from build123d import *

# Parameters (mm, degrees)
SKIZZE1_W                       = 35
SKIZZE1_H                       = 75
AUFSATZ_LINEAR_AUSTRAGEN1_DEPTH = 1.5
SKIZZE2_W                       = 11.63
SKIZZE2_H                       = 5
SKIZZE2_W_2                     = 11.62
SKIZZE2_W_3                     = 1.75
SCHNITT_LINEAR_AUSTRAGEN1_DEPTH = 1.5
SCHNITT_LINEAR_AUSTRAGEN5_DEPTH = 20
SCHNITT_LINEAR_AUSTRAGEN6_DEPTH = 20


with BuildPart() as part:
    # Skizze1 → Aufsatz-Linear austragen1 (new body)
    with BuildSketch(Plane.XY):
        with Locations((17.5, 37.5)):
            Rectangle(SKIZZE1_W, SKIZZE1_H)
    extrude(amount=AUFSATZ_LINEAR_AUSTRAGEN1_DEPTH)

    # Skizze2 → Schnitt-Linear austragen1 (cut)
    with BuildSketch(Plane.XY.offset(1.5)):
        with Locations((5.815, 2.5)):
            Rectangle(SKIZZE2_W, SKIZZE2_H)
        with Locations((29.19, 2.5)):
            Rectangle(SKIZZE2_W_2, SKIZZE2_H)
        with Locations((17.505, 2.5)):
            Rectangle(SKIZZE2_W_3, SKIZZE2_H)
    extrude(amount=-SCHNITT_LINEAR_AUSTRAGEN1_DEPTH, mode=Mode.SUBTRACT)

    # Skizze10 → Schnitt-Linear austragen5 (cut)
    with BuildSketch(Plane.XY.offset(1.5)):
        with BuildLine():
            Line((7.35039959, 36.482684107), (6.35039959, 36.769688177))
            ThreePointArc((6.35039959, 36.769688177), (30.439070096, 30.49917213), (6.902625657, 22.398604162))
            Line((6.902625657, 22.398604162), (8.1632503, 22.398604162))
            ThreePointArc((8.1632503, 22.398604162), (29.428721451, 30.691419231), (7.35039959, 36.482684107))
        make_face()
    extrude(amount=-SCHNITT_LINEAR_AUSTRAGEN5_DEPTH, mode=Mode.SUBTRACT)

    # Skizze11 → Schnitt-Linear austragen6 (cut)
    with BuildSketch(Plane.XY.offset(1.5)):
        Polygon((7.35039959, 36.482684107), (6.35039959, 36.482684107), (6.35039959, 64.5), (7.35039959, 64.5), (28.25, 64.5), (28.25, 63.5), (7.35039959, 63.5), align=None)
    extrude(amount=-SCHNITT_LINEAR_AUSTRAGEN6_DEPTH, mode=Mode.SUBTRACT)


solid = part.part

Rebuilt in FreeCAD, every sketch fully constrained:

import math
import FreeCAD as App
import Part
import Sketcher

V = App.Vector
Q = App.Units.Quantity

doc = App.newDocument("Part")
body = doc.addObject("PartDesign::Body", "Body")

# Sketch on XY plane
sketch1 = body.newObject("Sketcher::SketchObject", "Sketch")
sketch1.AttachmentSupport = (doc.getObject("XY_Plane"), [""])
sketch1.MapMode = "FlatFace"
sketch1.addGeometry([
    Part.LineSegment(V(0, 75, 0), V(0, 0, 0)),
    Part.LineSegment(V(0, 0, 0), V(35, 0, 0)),
    Part.LineSegment(V(35, 0, 0), V(35, 75, 0)),
    Part.LineSegment(V(35, 75, 0), V(0, 75, 0)),
], False)
sketch1.addConstraint([
    Sketcher.Constraint("Coincident", 0, 2, 1, 1),
    Sketcher.Constraint("Coincident", 1, 2, 2, 1),
    Sketcher.Constraint("Coincident", 2, 2, 3, 1),
    Sketcher.Constraint("Coincident", 3, 2, 0, 1),
    Sketcher.Constraint("Vertical", 0),
    Sketcher.Constraint("Horizontal", 1),
    Sketcher.Constraint("Vertical", 2),
    Sketcher.Constraint("Horizontal", 3),
    Sketcher.Constraint("Coincident", 0, 2, -1, 1),
    Sketcher.Constraint("DistanceX", 1, 1, 1, 2, Q("35 mm")),
    Sketcher.Constraint("DistanceY", 0, 2, 0, 1, Q("75 mm")),
])
pad1 = body.newObject("PartDesign::Pad", "Pad")
pad1.Profile = sketch1
pad1.Length = 1.5

# Sketch on XY plane
sketch2 = body.newObject("Sketcher::SketchObject", "Sketch001")
sketch2.AttachmentSupport = (doc.getObject("XY_Plane"), [""])
sketch2.MapMode = "FlatFace"
sketch2.AttachmentOffset = App.Placement(V(0, 0, 1.5), App.Rotation())
sketch2.addGeometry([
    Part.LineSegment(V(0, 5, 0), V(0, 0, 0)),  # 0
    Part.LineSegment(V(0, 0, 0), V(11.6, 0, 0)),  # 1
    Part.LineSegment(V(11.6, 0, 0), V(11.6, 5, 0)),  # 2
    Part.LineSegment(V(11.6, 5, 0), V(0, 5, 0)),  # 3
    Part.LineSegment(V(23.4, 5, 0), V(23.4, 0, 0)),  # 4
    Part.LineSegment(V(23.4, 0, 0), V(35, 0, 0)),  # 5
    Part.LineSegment(V(35, 0, 0), V(35, 5, 0)),  # 6
    Part.LineSegment(V(35, 5, 0), V(23.4, 5, 0)),  # 7
    Part.LineSegment(V(16.6, 5, 0), V(16.6, 0, 0)),  # 8
    Part.LineSegment(V(16.6, 0, 0), V(18.4, 0, 0)),  # 9
    Part.LineSegment(V(18.4, 0, 0), V(18.4, 5, 0)),  # 10
    Part.LineSegment(V(18.4, 5, 0), V(16.6, 5, 0)),  # 11
], False)
sketch2.addConstraint([
    Sketcher.Constraint("Coincident", 0, 2, 1, 1),
    Sketcher.Constraint("Coincident", 1, 2, 2, 1),
    Sketcher.Constraint("Coincident", 2, 2, 3, 1),
    Sketcher.Constraint("Coincident", 3, 2, 0, 1),
    Sketcher.Constraint("Coincident", 4, 2, 5, 1),
    Sketcher.Constraint("Coincident", 5, 2, 6, 1),
    Sketcher.Constraint("Coincident", 6, 2, 7, 1),
    Sketcher.Constraint("Coincident", 7, 2, 4, 1),
    Sketcher.Constraint("Coincident", 8, 2, 9, 1),
    Sketcher.Constraint("Coincident", 9, 2, 10, 1),
    Sketcher.Constraint("Coincident", 10, 2, 11, 1),
    Sketcher.Constraint("Coincident", 11, 2, 8, 1),
    Sketcher.Constraint("Vertical", 0),
    Sketcher.Constraint("Horizontal", 1),
    Sketcher.Constraint("Vertical", 2),
    Sketcher.Constraint("Horizontal", 3),
    Sketcher.Constraint("Vertical", 4),
    Sketcher.Constraint("Horizontal", 5),
    Sketcher.Constraint("Vertical", 6),
    Sketcher.Constraint("Horizontal", 7),
    Sketcher.Constraint("Vertical", 8),
    Sketcher.Constraint("Horizontal", 9),
    Sketcher.Constraint("Vertical", 10),
    Sketcher.Constraint("Horizontal", 11),
    Sketcher.Constraint("Coincident", 0, 2, -1, 1),
    Sketcher.Constraint("PointOnObject", 4, 2, -1),
    Sketcher.Constraint("PointOnObject", 8, 2, -1),
    Sketcher.Constraint("Horizontal", 3, 2, 6, 2),
    Sketcher.Constraint("Horizontal", 7, 2, 10, 2),
    Sketcher.Constraint("DistanceY", 0, 2, 0, 1, Q("5 mm")),
    Sketcher.Constraint("DistanceX", -1, 1, 5, 2, Q("35 mm")),
    Sketcher.Constraint("DistanceX", 1, 2, 8, 2, Q("5 mm")),
    Sketcher.Constraint("DistanceX", 9, 2, 4, 2, Q("5 mm")),
    Sketcher.Constraint("DistanceX", 1, 1, 1, 2, Q("11.63 mm")),
    Sketcher.Constraint("DistanceX", 5, 1, 5, 2, Q("11.62 mm")),
])
pocket1 = body.newObject("PartDesign::Pocket", "Pocket")
pocket1.Profile = sketch2
pocket1.Length = 1.5

# Sketch on XY plane
sketch3 = body.newObject("Sketcher::SketchObject", "Sketch002")
sketch3.AttachmentSupport = (doc.getObject("XY_Plane"), [""])
sketch3.MapMode = "FlatFace"
sketch3.AttachmentOffset = App.Placement(V(0, 0, 1.5), App.Rotation())
sketch3.addGeometry([
    Part.LineSegment(V(6.4, 36.8, 0), V(7.4, 36.5, 0)),
    Part.ArcOfCircle(Part.Circle(V(17.4, 30, 0), V(0, 0, 1), 12), math.radians(-141), math.radians(147)),
    Part.LineSegment(V(8.2, 22.4, 0), V(6.9, 22.4, 0)),
    Part.ArcOfCircle(Part.Circle(V(17.4, 30, 0), V(0, 0, 1), 13), math.radians(-144), math.radians(149)),
], False)
sketch3.addConstraint([
    Sketcher.Constraint("Coincident", 0, 2, 1, 2),
    Sketcher.Constraint("Coincident", 1, 1, 2, 1),
    Sketcher.Constraint("Coincident", 2, 2, 3, 1),
    Sketcher.Constraint("Coincident", 3, 2, 0, 1),
    Sketcher.Constraint("Horizontal", 2),
    Sketcher.Constraint("Coincident", 3, 3, 1, 3),
    Sketcher.Constraint("Radius", 1, Q("12 mm")),
    Sketcher.Constraint("Radius", 3, Q("13 mm")),
    Sketcher.Constraint("DistanceY", -1, 1, 1, 3, Q("30 mm")),
    Sketcher.Constraint("DistanceX", 3, 2, 0, 2, Q("1 mm")),
    Sketcher.Constraint("DistanceX", -1, 1, 0, 2, Q("7.3504 mm")),
    Sketcher.Constraint("Distance", 0, Q("1.040371 mm")),
    Sketcher.Constraint("DistanceX", 2, 2, 2, 1, Q("1.260625 mm")),
])
pocket2 = body.newObject("PartDesign::Pocket", "Pocket001")
pocket2.Profile = sketch3
pocket2.Length = 20

# Sketch on XY plane
sketch4 = body.newObject("Sketcher::SketchObject", "Sketch003")
sketch4.AttachmentSupport = (doc.getObject("XY_Plane"), [""])
sketch4.MapMode = "FlatFace"
sketch4.AttachmentOffset = App.Placement(V(0, 0, 1.5), App.Rotation())
sketch4.addGeometry([
    Part.LineSegment(V(6.4, 36.5, 0), V(7.4, 36.5, 0)),  # 0
    Part.LineSegment(V(7.4, 36.5, 0), V(7.4, 63.5, 0)),  # 1
    Part.LineSegment(V(7.4, 63.5, 0), V(28.2, 63.5, 0)),  # 2
    Part.LineSegment(V(28.2, 63.5, 0), V(28.2, 64.5, 0)),  # 3
    Part.LineSegment(V(28.2, 64.5, 0), V(6.4, 64.5, 0)),  # 4
    Part.LineSegment(V(6.4, 64.5, 0), V(6.4, 36.5, 0)),  # 5
], False)
sketch4.addConstraint([
    Sketcher.Constraint("Coincident", 0, 2, 1, 1),
    Sketcher.Constraint("Coincident", 1, 2, 2, 1),
    Sketcher.Constraint("Coincident", 2, 2, 3, 1),
    Sketcher.Constraint("Coincident", 3, 2, 4, 1),
    Sketcher.Constraint("Coincident", 4, 2, 5, 1),
    Sketcher.Constraint("Coincident", 5, 2, 0, 1),
    Sketcher.Constraint("Horizontal", 0),
    Sketcher.Constraint("Vertical", 1),
    Sketcher.Constraint("Horizontal", 2),
    Sketcher.Constraint("Vertical", 3),
    Sketcher.Constraint("Horizontal", 4),
    Sketcher.Constraint("Vertical", 5),
    Sketcher.Constraint("Equal", 0, 3),
    Sketcher.Constraint("DistanceX", 0, 1, 0, 2, Q("1 mm")),
    Sketcher.Constraint("DistanceY", -1, 1, 1, 2, Q("63.5 mm")),
    Sketcher.Constraint("DistanceX", -1, 1, 2, 2, Q("28.25 mm")),
    Sketcher.Constraint("DistanceX", 2, 1, 2, 2, Q("20.8996 mm")),
    Sketcher.Constraint("DistanceY", 1, 1, 1, 2, Q("27.017316 mm")),
])
pocket3 = body.newObject("PartDesign::Pocket", "Pocket002")
pocket3.Profile = sketch4
pocket3.Length = 20

doc.recompute()
